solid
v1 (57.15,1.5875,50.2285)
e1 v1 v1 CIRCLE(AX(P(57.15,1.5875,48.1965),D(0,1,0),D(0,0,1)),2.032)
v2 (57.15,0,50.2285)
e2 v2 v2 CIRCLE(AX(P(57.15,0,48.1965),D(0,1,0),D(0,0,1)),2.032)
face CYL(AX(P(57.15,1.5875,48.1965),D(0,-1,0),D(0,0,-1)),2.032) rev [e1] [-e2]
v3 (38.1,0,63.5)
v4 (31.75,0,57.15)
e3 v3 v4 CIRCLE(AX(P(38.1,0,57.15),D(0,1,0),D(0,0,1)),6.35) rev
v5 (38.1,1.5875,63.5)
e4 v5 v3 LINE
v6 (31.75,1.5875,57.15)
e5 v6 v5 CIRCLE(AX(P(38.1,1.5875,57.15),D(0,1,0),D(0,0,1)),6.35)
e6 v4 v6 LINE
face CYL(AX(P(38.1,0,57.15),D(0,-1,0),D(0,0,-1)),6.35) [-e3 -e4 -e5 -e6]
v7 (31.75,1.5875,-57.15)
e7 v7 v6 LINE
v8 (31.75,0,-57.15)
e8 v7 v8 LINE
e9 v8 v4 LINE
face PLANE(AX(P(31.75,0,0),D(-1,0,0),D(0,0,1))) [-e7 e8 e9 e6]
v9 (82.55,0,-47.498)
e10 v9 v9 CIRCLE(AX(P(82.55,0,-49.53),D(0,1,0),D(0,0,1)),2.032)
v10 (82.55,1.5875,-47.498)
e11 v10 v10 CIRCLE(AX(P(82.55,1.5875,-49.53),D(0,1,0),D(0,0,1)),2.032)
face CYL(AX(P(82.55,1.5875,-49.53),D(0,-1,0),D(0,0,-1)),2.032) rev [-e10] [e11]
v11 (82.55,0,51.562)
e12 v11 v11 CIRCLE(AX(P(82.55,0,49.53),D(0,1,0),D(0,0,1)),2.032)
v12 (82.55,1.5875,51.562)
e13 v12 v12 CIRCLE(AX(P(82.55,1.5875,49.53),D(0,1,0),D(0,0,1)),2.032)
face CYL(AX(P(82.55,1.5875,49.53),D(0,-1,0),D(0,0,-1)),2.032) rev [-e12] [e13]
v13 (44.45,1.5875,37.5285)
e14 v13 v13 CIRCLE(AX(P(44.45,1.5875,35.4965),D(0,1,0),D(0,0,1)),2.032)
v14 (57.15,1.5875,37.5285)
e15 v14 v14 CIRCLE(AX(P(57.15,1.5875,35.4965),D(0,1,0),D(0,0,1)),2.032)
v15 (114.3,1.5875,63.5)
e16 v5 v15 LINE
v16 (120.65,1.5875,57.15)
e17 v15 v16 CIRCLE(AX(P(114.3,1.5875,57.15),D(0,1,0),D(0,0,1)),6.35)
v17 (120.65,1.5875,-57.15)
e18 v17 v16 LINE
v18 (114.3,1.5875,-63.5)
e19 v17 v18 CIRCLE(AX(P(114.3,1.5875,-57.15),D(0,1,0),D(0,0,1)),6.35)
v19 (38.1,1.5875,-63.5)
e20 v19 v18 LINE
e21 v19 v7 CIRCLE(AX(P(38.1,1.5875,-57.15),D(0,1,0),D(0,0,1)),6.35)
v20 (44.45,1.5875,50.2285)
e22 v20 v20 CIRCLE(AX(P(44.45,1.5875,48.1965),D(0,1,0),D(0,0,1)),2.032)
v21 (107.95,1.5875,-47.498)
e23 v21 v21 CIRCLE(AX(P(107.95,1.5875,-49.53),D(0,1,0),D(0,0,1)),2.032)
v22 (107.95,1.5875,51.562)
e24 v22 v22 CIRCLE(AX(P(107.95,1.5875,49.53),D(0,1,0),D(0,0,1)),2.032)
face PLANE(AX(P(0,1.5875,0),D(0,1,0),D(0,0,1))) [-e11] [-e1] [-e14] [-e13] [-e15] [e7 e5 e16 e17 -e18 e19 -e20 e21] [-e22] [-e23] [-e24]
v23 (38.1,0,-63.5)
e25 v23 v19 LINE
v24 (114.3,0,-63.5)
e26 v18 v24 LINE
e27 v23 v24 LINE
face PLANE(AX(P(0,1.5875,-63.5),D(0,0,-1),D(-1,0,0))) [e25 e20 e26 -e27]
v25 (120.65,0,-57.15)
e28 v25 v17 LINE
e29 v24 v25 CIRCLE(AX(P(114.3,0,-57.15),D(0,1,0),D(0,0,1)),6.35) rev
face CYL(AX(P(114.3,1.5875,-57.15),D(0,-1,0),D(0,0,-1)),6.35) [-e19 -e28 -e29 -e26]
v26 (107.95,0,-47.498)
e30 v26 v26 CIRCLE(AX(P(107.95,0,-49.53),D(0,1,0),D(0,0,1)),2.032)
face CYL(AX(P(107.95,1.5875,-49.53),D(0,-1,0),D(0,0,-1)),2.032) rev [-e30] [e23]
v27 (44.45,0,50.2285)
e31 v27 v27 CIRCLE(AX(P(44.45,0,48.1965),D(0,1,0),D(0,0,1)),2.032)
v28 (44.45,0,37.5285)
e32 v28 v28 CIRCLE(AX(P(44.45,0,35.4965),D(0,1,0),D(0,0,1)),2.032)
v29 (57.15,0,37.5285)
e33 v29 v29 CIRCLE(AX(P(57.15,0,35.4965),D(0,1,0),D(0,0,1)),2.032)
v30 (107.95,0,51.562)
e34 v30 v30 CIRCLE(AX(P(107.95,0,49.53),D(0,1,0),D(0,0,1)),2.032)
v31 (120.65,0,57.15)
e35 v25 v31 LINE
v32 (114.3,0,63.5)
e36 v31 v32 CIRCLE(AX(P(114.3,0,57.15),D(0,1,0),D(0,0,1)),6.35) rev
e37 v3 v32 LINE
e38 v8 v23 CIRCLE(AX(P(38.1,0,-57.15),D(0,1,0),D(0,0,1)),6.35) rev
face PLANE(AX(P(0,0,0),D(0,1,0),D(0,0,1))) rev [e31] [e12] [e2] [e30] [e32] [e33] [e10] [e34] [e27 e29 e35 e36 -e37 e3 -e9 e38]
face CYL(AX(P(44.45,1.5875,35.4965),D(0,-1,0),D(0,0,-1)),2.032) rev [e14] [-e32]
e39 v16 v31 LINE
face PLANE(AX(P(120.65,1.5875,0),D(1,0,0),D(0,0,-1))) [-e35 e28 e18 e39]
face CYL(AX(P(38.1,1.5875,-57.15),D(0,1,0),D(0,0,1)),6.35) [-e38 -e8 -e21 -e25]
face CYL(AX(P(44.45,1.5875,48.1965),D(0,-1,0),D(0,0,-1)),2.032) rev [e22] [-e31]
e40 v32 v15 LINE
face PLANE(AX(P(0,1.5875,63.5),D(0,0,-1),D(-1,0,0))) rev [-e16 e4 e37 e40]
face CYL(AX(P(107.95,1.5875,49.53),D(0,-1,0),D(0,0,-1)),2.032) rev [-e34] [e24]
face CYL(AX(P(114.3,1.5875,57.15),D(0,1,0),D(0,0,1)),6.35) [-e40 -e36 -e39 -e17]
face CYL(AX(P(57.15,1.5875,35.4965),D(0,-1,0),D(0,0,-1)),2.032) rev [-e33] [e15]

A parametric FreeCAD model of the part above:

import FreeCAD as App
import Part
import Sketcher
from FreeCAD import Vector
Q = App.Units.Quantity


def edges_at(feature, points):
    """Names of the edges that pass closest to the given points."""
    edges = feature.Shape.Edges
    near = lambda p: min(range(len(edges)), key=lambda i: edges[i].distToShape(Part.Vertex(*p))[0])
    return sorted({f"Edge{near(p) + 1}" for p in points})


def add_polygon(sketch, points):
    """Adds a closed chain of lines whose ends are joined by coincident constraints."""
    first, n = sketch.GeometryCount, len(points)
    for a, b in zip(points, points[1:] + points[:1]):
        sketch.addGeometry(Part.LineSegment(App.Vector(*a, 0), App.Vector(*b, 0)), False)
    for i in range(n):
        sketch.addConstraint(Sketcher.Constraint("Coincident", first + i, 2, first + (i + 1) % n, 1))

doc = App.newDocument("Part")
params = doc.addObject("Spreadsheet::Sheet", "Params")
for row, (alias, value) in enumerate([
    ("sketch1_diameter", "0.16 in"),
    ("sketch1_height", "5 in"),
    ("sketch1_width", "9.5 in"),
    ("pad1_length", "0.0625 in"),
    ("sketch2_width", "6 in"),
    ("sketch2_height", "5 in"),
    ("fillet_radius", "0.25 in"),
], start=1):
    params.set(f"A{row}", alias)
    params.set(f"B{row}", "=" + value)
    params.setAlias(f"B{row}", alias)

body = doc.addObject("PartDesign::Body", "Body")

# Sketch on XZ plane
sketch1 = body.newObject("Sketcher::SketchObject", "Sketch")
sketch1.AttachmentSupport = (doc.getObject("XZ_Plane"), [""])
sketch1.MapMode = "FlatFace"
add_polygon(sketch1, [(-120.7, -63.5), (-120.7, 63.5), (120.7, 63.5), (120.7, -63.5)])  # lines 0-3
sketch1.addGeometry(Part.Circle(Vector(44.5, 48.2, 0), Vector(0, 0, 1), 2), False)  # 4
sketch1.addGeometry(Part.Circle(Vector(57.1, 48.2, 0), Vector(0, 0, 1), 2), False)  # 5
sketch1.addGeometry(Part.Circle(Vector(44.5, 35.5, 0), Vector(0, 0, 1), 2), False)  # 6
sketch1.addGeometry(Part.Circle(Vector(57.1, 35.5, 0), Vector(0, 0, 1), 2), False)  # 7
sketch1.addGeometry(Part.Circle(Vector(82.5, 49.5, 0), Vector(0, 0, 1), 2), False)  # 8
sketch1.addGeometry(Part.Circle(Vector(108, 49.5, 0), Vector(0, 0, 1), 2), False)  # 9
sketch1.addGeometry(Part.Circle(Vector(82.5, -49.5, 0), Vector(0, 0, 1), 2), False)  # 10
sketch1.addGeometry(Part.Circle(Vector(108, -49.5, 0), Vector(0, 0, 1), 2), False)  # 11
sketch1.addConstraint([
    Sketcher.Constraint("Vertical", 0),
    Sketcher.Constraint("Horizontal", 1),
    Sketcher.Constraint("Vertical", 2),
    Sketcher.Constraint("Horizontal", 3),
    Sketcher.Constraint("Equal", 4, 5),
    Sketcher.Constraint("Equal", 5, 6),
    Sketcher.Constraint("Equal", 6, 7),
    Sketcher.Constraint("Equal", 7, 8),
    Sketcher.Constraint("Equal", 8, 9),
    Sketcher.Constraint("Equal", 9, 10),
    Sketcher.Constraint("Equal", 10, 11),
    Sketcher.Constraint("Symmetric", 0, 2, 2, 2, -1, 1),
    Sketcher.Constraint("Symmetric", 8, 3, 10, 3, -1),
    Sketcher.Constraint("Symmetric", 9, 3, 11, 3, -1),
    Sketcher.Constraint("Horizontal", 4, 3, 5, 3),
    Sketcher.Constraint("Horizontal", 6, 3, 7, 3),
    Sketcher.Constraint("Horizontal", 8, 3, 9, 3),
    Sketcher.Constraint("Vertical", 4, 3, 6, 3),
    Sketcher.Constraint("Vertical", 5, 3, 7, 3),
    Sketcher.Constraint("Diameter", 4, Q("0.16 in")),
    Sketcher.Constraint("DistanceY", 0, 1, 0, 2, Q("5 in")),
    Sketcher.Constraint("DistanceX", 1, 1, 1, 2, Q("9.5 in")),
    Sketcher.Constraint("DistanceX", 5, 3, 8, 3, Q("1 in")),
    Sketcher.Constraint("DistanceX", 8, 3, 9, 3, Q("1 in")),
    Sketcher.Constraint("DistanceX", 0, 2, 5, 3, Q("7 in")),
    Sketcher.Constraint("DistanceX", 4, 3, 1, 2, Q("3 in")),
    Sketcher.Constraint("DistanceY", 6, 3, 4, 3, Q("0.5 in")),
    Sketcher.Constraint("DistanceY", 10, 3, 8, 3, Q("3.9 in")),
    Sketcher.Constraint("DistanceY", -1, 1, 4, 3, Q("1.8975 in")),
])
sketch1.setExpression("Constraints[23]", "Params.sketch1_diameter")
sketch1.setExpression("Constraints[24]", "Params.sketch1_height")
sketch1.setExpression("Constraints[25]", "Params.sketch1_width")
pad1 = body.newObject("PartDesign::Pad", "Pad")
pad1.Profile = sketch1
pad1.setExpression("Length", "Params.pad1_length")
pad1.Reversed = True

# Sketch on XZ plane
sketch2 = body.newObject("Sketcher::SketchObject", "Sketch001")
sketch2.AttachmentSupport = (doc.getObject("XZ_Plane"), [""])
sketch2.MapMode = "FlatFace"
sketch2.AttachmentOffset = App.Placement(Vector(0, 0, -0.0625 * 25.4), App.Rotation())
add_polygon(sketch2, [(-121, -64), (-121, 64), (32, 64), (32, -64)])  # lines 0-3
sketch2.addConstraint([
    Sketcher.Constraint("Vertical", 0),
    Sketcher.Constraint("Horizontal", 1),
    Sketcher.Constraint("Vertical", 2),
    Sketcher.Constraint("Horizontal", 3),
    Sketcher.Constraint("DistanceX", 1, 1, 1, 2, Q("6 in")),
    Sketcher.Constraint("DistanceY", 0, 1, 0, 2, Q("5 in")),
    Sketcher.Constraint("DistanceY", -1, 1, 0, 2, Q("2.5 in")),
    Sketcher.Constraint("DistanceX", 0, 2, -1, 1, Q("4.75 in")),
])
sketch2.setExpression("Constraints[8]", "Params.sketch2_width")
sketch2.setExpression("Constraints[9]", "Params.sketch2_height")
pocket1 = body.newObject("PartDesign::Pocket", "Pocket")
pocket1.Profile = sketch2
pocket1.Type = "ThroughAll"
pocket1.Reversed = True
doc.recompute()

fillet = body.newObject("PartDesign::Fillet", "Fillet")
fillet.Base = (pocket1, edges_at(pocket1, [
    (120.65, 0.794, 63.5),
    (120.65, 0.794, -63.5),
    (31.75, 0.794, -63.5),
    (31.75, 0.794, 63.5),
]))
fillet.setExpression("Radius", "Params.fillet_radius")

doc.recompute()
